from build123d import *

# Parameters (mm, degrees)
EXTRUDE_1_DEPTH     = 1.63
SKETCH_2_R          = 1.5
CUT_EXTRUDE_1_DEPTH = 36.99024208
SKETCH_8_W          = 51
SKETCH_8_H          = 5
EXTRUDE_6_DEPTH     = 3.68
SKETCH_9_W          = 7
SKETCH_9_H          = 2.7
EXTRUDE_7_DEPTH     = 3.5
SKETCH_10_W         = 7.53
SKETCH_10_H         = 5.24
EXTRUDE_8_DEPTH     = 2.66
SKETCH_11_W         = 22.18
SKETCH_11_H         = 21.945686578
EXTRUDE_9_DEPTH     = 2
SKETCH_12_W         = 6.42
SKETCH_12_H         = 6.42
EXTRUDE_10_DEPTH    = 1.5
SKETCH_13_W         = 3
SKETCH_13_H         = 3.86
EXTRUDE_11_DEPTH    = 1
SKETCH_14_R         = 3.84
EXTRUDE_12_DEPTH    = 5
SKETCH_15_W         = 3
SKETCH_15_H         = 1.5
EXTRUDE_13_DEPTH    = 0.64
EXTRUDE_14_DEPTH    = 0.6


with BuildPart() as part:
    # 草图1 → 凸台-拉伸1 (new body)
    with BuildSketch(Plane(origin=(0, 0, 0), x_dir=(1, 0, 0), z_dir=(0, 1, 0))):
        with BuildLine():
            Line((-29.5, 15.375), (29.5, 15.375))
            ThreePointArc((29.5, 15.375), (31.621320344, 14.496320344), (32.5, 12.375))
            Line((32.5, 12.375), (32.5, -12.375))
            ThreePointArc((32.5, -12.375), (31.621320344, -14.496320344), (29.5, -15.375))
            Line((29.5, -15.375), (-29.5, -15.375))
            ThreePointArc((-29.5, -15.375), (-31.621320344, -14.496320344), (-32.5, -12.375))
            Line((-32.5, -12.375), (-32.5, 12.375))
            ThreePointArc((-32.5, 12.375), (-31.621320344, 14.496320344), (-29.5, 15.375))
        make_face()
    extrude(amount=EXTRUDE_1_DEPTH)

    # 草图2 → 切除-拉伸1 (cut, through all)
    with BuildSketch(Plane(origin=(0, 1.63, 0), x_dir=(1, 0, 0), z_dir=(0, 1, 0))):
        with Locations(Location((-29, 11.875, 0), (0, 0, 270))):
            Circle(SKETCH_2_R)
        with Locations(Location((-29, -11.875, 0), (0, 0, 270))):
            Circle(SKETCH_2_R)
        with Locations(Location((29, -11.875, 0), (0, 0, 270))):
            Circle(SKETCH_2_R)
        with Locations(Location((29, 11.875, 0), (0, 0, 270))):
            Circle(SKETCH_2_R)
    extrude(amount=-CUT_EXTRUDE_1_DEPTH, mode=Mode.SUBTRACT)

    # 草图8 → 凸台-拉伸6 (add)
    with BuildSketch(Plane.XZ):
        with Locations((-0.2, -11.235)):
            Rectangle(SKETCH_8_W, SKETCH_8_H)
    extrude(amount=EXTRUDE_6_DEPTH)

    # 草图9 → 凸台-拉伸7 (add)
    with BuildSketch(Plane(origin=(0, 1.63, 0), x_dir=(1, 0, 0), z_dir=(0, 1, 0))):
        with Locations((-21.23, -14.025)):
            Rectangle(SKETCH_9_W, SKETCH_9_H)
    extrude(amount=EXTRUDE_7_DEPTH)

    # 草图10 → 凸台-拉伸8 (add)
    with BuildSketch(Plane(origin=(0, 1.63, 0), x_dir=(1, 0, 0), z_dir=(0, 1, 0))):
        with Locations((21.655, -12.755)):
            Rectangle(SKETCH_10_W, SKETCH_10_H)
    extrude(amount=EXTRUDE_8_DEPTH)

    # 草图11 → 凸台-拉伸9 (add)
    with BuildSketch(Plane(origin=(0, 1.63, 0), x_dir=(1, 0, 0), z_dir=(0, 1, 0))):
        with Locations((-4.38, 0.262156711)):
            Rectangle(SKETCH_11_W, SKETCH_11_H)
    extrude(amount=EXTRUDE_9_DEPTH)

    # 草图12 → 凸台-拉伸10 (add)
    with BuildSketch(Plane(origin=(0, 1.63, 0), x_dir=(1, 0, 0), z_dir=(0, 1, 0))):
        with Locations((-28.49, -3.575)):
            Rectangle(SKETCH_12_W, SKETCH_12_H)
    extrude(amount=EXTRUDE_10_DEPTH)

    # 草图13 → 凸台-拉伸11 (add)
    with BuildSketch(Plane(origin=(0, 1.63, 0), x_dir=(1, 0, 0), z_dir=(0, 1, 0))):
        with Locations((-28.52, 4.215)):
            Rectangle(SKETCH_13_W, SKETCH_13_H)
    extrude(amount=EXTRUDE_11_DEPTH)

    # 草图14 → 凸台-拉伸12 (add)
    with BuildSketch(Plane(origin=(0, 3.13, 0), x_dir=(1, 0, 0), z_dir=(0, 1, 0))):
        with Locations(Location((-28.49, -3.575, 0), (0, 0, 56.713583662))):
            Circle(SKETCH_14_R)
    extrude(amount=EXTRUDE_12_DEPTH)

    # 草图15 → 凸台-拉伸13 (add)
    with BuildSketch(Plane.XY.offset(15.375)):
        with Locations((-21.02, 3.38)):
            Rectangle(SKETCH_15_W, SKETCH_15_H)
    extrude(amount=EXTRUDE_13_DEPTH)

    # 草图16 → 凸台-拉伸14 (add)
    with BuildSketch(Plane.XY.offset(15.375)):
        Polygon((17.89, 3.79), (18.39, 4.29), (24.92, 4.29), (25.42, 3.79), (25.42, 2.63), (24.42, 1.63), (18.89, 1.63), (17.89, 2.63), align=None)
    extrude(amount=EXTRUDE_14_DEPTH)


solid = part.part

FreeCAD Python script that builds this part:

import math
import FreeCAD as App
import Part
import Sketcher
Q = App.Units.Quantity


def add_polygon(sketch, points):
    """Adds a closed chain of lines whose ends are joined by coincident constraints."""
    first, n = sketch.GeometryCount, len(points)
    for a, b in zip(points, points[1:] + points[:1]):
        sketch.addGeometry(Part.LineSegment(App.Vector(*a, 0), App.Vector(*b, 0)), False)
    for i in range(n):
        sketch.addConstraint(Sketcher.Constraint("Coincident", first + i, 2, first + (i + 1) % n, 1))

doc = App.newDocument("Part")
body = doc.addObject("PartDesign::Body", "Body")

# Sketch on XZ plane
sketch1 = doc.addObject("Sketcher::SketchObject", "Sketch")
body.addObject(sketch1)
sketch1.AttachmentSupport = (doc.XZ_Plane, [""])
sketch1.MapMode = "FlatFace"
sketch1.addGeometry(Part.LineSegment(App.Vector(29.5, -15.4, 0), App.Vector(-29.5, -15.4, 0)), False)
sketch1.addGeometry(Part.ArcOfCircle(Part.Circle(App.Vector(-29.5, -12.4, 0), App.Vector(0, 0, 1), 3), math.radians(180), math.radians(270)), False)
sketch1.addGeometry(Part.LineSegment(App.Vector(-32.5, -12.4, 0), App.Vector(-32.5, 12.4, 0)), False)
sketch1.addGeometry(Part.ArcOfCircle(Part.Circle(App.Vector(-29.5, 12.4, 0), App.Vector(0, 0, 1), 3), math.radians(90), math.radians(180)), False)
sketch1.addGeometry(Part.LineSegment(App.Vector(-29.5, 15.4, 0), App.Vector(29.5, 15.4, 0)), False)
sketch1.addGeometry(Part.ArcOfCircle(Part.Circle(App.Vector(29.5, 12.4, 0), App.Vector(0, 0, 1), 3), math.radians(0), math.radians(90)), False)
sketch1.addGeometry(Part.LineSegment(App.Vector(32.5, 12.4, 0), App.Vector(32.5, -12.4, 0)), False)
sketch1.addGeometry(Part.ArcOfCircle(Part.Circle(App.Vector(29.5, -12.4, 0), App.Vector(0, 0, 1), 3), math.radians(-90), math.radians(0)), False)
sketch1.addConstraint(Sketcher.Constraint("Tangent", 0, 2, 1, 2))
sketch1.addConstraint(Sketcher.Constraint("Tangent", 1, 1, 2, 1))
sketch1.addConstraint(Sketcher.Constraint("Tangent", 2, 2, 3, 2))
sketch1.addConstraint(Sketcher.Constraint("Tangent", 3, 1, 4, 1))
sketch1.addConstraint(Sketcher.Constraint("Tangent", 4, 2, 5, 2))
sketch1.addConstraint(Sketcher.Constraint("Tangent", 5, 1, 6, 1))
sketch1.addConstraint(Sketcher.Constraint("Tangent", 6, 2, 7, 2))
sketch1.addConstraint(Sketcher.Constraint("Tangent", 7, 1, 0, 1))
sketch1.addConstraint(Sketcher.Constraint("Horizontal", 0))
sketch1.addConstraint(Sketcher.Constraint("Vertical", 2))
sketch1.addConstraint(Sketcher.Constraint("Horizontal", 4))
sketch1.addConstraint(Sketcher.Constraint("Vertical", 6))
sketch1.addConstraint(Sketcher.Constraint("Equal", 1, 3))
sketch1.addConstraint(Sketcher.Constraint("Equal", 3, 5))
sketch1.addConstraint(Sketcher.Constraint("Equal", 5, 7))
sketch1.addConstraint(Sketcher.Constraint("Symmetric", 1, 3, 5, 3, -1, 1))
sketch1.addConstraint(Sketcher.Constraint("Radius", 1, Q("3 mm")))
sketch1.addConstraint(Sketcher.Constraint("DistanceX", 0, 2, 0, 1, Q("59 mm")))
sketch1.addConstraint(Sketcher.Constraint("DistanceY", 2, 1, 2, 2, Q("24.75 mm")))
pad1 = doc.addObject("PartDesign::Pad", "Pad")
body.addObject(pad1)
pad1.Profile = sketch1
pad1.Length = 1.63
pad1.Reversed = True

# Sketch on XZ plane
sketch2 = doc.addObject("Sketcher::SketchObject", "Sketch001")
body.addObject(sketch2)
sketch2.AttachmentSupport = (doc.XZ_Plane, [""])
sketch2.MapMode = "FlatFace"
sketch2.AttachmentOffset = App.Placement(App.Vector(0, 0, -1.63), App.Rotation())
sketch2.addGeometry(Part.Circle(App.Vector(-29, -11.9, 0), App.Vector(0, 0, 1), 1.5), False)
sketch2.addGeometry(Part.Circle(App.Vector(-29, 11.9, 0), App.Vector(0, 0, 1), 1.5), False)
sketch2.addGeometry(Part.Circle(App.Vector(29, 11.9, 0), App.Vector(0, 0, 1), 1.5), False)
sketch2.addGeometry(Part.Circle(App.Vector(29, -11.9, 0), App.Vector(0, 0, 1), 1.5), False)
sketch2.addConstraint(Sketcher.Constraint("Equal", 0, 1))
sketch2.addConstraint(Sketcher.Constraint("Equal", 1, 2))
sketch2.addConstraint(Sketcher.Constraint("Equal", 2, 3))
sketch2.addConstraint(Sketcher.Constraint("Symmetric", 0, 3, 2, 3, -1, 1))
sketch2.addConstraint(Sketcher.Constraint("Symmetric", 1, 3, 3, 3, -1, 1))
sketch2.addConstraint(Sketcher.Constraint("Symmetric", 1, 3, 2, 3, -2))
sketch2.addConstraint(Sketcher.Constraint("Diameter", 0, Q("3 mm")))
sketch2.addConstraint(Sketcher.Constraint("DistanceX", 0, 3, -1, 1, Q("29 mm")))
sketch2.addConstraint(Sketcher.Constraint("DistanceY", 0, 3, 1, 3, Q("23.75 mm")))
pocket1 = doc.addObject("PartDesign::Pocket", "Pocket")
body.addObject(pocket1)
pocket1.Profile = sketch2
pocket1.Type = "ThroughAll"
pocket1.Reversed = True

# Sketch on XZ plane
sketch3 = doc.addObject("Sketcher::SketchObject", "Sketch002")
body.addObject(sketch3)
sketch3.AttachmentSupport = (doc.XZ_Plane, [""])
sketch3.MapMode = "FlatFace"
add_polygon(sketch3, [(-26, -9), (-26, -14), (25, -14), (25, -9)])  # lines 0-3
sketch3.addConstraint(Sketcher.Constraint("Vertical", 0))
sketch3.addConstraint(Sketcher.Constraint("Horizontal", 1))
sketch3.addConstraint(Sketcher.Constraint("Vertical", 2))
sketch3.addConstraint(Sketcher.Constraint("Horizontal", 3))
sketch3.addConstraint(Sketcher.Constraint("DistanceX", 1, 1, 1, 2, Q("51 mm")))
sketch3.addConstraint(Sketcher.Constraint("DistanceY", 0, 2, 0, 1, Q("5 mm")))
sketch3.addConstraint(Sketcher.Constraint("DistanceX", 0, 2, -1, 1, Q("25.7 mm")))
sketch3.addConstraint(Sketcher.Constraint("DistanceY", 0, 2, -1, 1, Q("13.735 mm")))
pad2 = doc.addObject("PartDesign::Pad", "Pad001")
body.addObject(pad2)
pad2.Profile = sketch3
pad2.Length = 3.68

# Sketch on XZ plane
sketch4 = doc.addObject("Sketcher::SketchObject", "Sketch003")
body.addObject(sketch4)
sketch4.AttachmentSupport = (doc.XZ_Plane, [""])
sketch4.MapMode = "FlatFace"
sketch4.AttachmentOffset = App.Placement(App.Vector(0, 0, -1.63), App.Rotation())
add_polygon(sketch4, [(-24.7, 12.7), (-24.7, 15.4), (-17.7, 15.4), (-17.7, 12.7)])  # lines 0-3
sketch4.addConstraint(Sketcher.Constraint("Vertical", 0))
sketch4.addConstraint(Sketcher.Constraint("Horizontal", 1))
sketch4.addConstraint(Sketcher.Constraint("Vertical", 2))
sketch4.addConstraint(Sketcher.Constraint("Horizontal", 3))
sketch4.addConstraint(Sketcher.Constraint("DistanceX", 1, 1, 1, 2, Q("7 mm")))
sketch4.addConstraint(Sketcher.Constraint("DistanceY", 0, 1, 0, 2, Q("2.7 mm")))
sketch4.addConstraint(Sketcher.Constraint("DistanceX", 0, 2, -1, 1, Q("24.73 mm")))
sketch4.addConstraint(Sketcher.Constraint("DistanceY", -1, 1, 0, 2, Q("15.375 mm")))
pad3 = doc.addObject("PartDesign::Pad", "Pad002")
body.addObject(pad3)
pad3.Profile = sketch4
pad3.Length = 3.5
pad3.Reversed = True

# Sketch on XZ plane
sketch5 = doc.addObject("Sketcher::SketchObject", "Sketch004")
body.addObject(sketch5)
sketch5.AttachmentSupport = (doc.XZ_Plane, [""])
sketch5.MapMode = "FlatFace"
sketch5.AttachmentOffset = App.Placement(App.Vector(0, 0, -1.63), App.Rotation())
add_polygon(sketch5, [(18, 10), (18, 15), (25, 15), (25, 10)])  # lines 0-3
sketch5.addConstraint(Sketcher.Constraint("Vertical", 0))
sketch5.addConstraint(Sketcher.Constraint("Horizontal", 1))
sketch5.addConstraint(Sketcher.Constraint("Vertical", 2))
sketch5.addConstraint(Sketcher.Constraint("Horizontal", 3))
sketch5.addConstraint(Sketcher.Constraint("DistanceX", 1, 1, 1, 2, Q("7.53 mm")))
sketch5.addConstraint(Sketcher.Constraint("DistanceY", 0, 1, 0, 2, Q("5.24 mm")))
sketch5.addConstraint(Sketcher.Constraint("DistanceX", -1, 1, 0, 2, Q("17.89 mm")))
sketch5.addConstraint(Sketcher.Constraint("DistanceY", -1, 1, 0, 2, Q("15.375 mm")))
pad4 = doc.addObject("PartDesign::Pad", "Pad003")
body.addObject(pad4)
pad4.Profile = sketch5
pad4.Length = 2.66
pad4.Reversed = True

# Sketch on XZ plane
sketch6 = doc.addObject("Sketcher::SketchObject", "Sketch005")
body.addObject(sketch6)
sketch6.AttachmentSupport = (doc.XZ_Plane, [""])
sketch6.MapMode = "FlatFace"
sketch6.AttachmentOffset = App.Placement(App.Vector(0, 0, -1.63), App.Rotation())
add_polygon(sketch6, [(-15, -11), (-15, 11), (7, 11), (7, -11)])  # lines 0-3
sketch6.addConstraint(Sketcher.Constraint("Vertical", 0))
sketch6.addConstraint(Sketcher.Constraint("Horizontal", 1))
sketch6.addConstraint(Sketcher.Constraint("Vertical", 2))
sketch6.addConstraint(Sketcher.Constraint("Horizontal", 3))
sketch6.addConstraint(Sketcher.Constraint("DistanceX", 1, 1, 1, 2, Q("22.18 mm")))
sketch6.addConstraint(Sketcher.Constraint("DistanceX", 0, 2, -1, 1, Q("15.47 mm")))
sketch6.addConstraint(Sketcher.Constraint("DistanceY", 2, 2, -1, 1, Q("11.235 mm")))
sketch6.addConstraint(Sketcher.Constraint("DistanceY", 0, 1, 0, 2, Q("21.945687 mm")))
pad5 = doc.addObject("PartDesign::Pad", "Pad004")
body.addObject(pad5)
pad5.Profile = sketch6
pad5.Length = 2
pad5.Reversed = True

# Sketch on XZ plane
sketch7 = doc.addObject("Sketcher::SketchObject", "Sketch006")
body.addObject(sketch7)
sketch7.AttachmentSupport = (doc.XZ_Plane, [""])
sketch7.MapMode = "FlatFace"
sketch7.AttachmentOffset = App.Placement(App.Vector(0, 0, -1.63), App.Rotation())
add_polygon(sketch7, [(-32, 0), (-32, 7), (-25, 7), (-25, 0)])  # lines 0-3
sketch7.addConstraint(Sketcher.Constraint("Vertical", 0))
sketch7.addConstraint(Sketcher.Constraint("Horizontal", 1))
sketch7.addConstraint(Sketcher.Constraint("Vertical", 2))
sketch7.addConstraint(Sketcher.Constraint("Horizontal", 3))
sketch7.addConstraint(Sketcher.Constraint("Equal", 3, 0))
sketch7.addConstraint(Sketcher.Constraint("DistanceX", 1, 1, 1, 2, Q("6.42 mm")))
sketch7.addConstraint(Sketcher.Constraint("DistanceX", 0, 2, -1, 1, Q("31.7 mm")))
sketch7.addConstraint(Sketcher.Constraint("DistanceY", -1, 1, 0, 2, Q("6.785 mm")))
pad6 = doc.addObject("PartDesign::Pad", "Pad005")
body.addObject(pad6)
pad6.Profile = sketch7
pad6.Length = 1.5
pad6.Reversed = True

# Sketch on XZ plane
sketch8 = doc.addObject("Sketcher::SketchObject", "Sketch007")
body.addObject(sketch8)
sketch8.AttachmentSupport = (doc.XZ_Plane, [""])
sketch8.MapMode = "FlatFace"
sketch8.AttachmentOffset = App.Placement(App.Vector(0, 0, -1.63), App.Rotation())
add_polygon(sketch8, [(-30, -6.1), (-30, -2.3), (-27, -2.3), (-27, -6.1)])  # lines 0-3
sketch8.addConstraint(Sketcher.Constraint("Vertical", 0))
sketch8.addConstraint(Sketcher.Constraint("Horizontal", 1))
sketch8.addConstraint(Sketcher.Constraint("Vertical", 2))
sketch8.addConstraint(Sketcher.Constraint("Horizontal", 3))
sketch8.addConstraint(Sketcher.Constraint("DistanceX", 1, 1, 1, 2, Q("3 mm")))
sketch8.addConstraint(Sketcher.Constraint("DistanceY", 0, 1, 0, 2, Q("3.86 mm")))
sketch8.addConstraint(Sketcher.Constraint("DistanceX", 0, 2, -1, 1, Q("30.02 mm")))
sketch8.addConstraint(Sketcher.Constraint("DistanceY", 0, 2, -1, 1, Q("2.285 mm")))
pad7 = doc.addObject("PartDesign::Pad", "Pad006")
body.addObject(pad7)
pad7.Profile = sketch8
pad7.Length = 1
pad7.Reversed = True

# Sketch on XZ plane
sketch9 = doc.addObject("Sketcher::SketchObject", "Sketch008")
body.addObject(sketch9)
sketch9.AttachmentSupport = (doc.XZ_Plane, [""])
sketch9.MapMode = "FlatFace"
sketch9.AttachmentOffset = App.Placement(App.Vector(0, 0, -3.13), App.Rotation())
sketch9.addGeometry(Part.Circle(App.Vector(-28.5, 3.6, 0), App.Vector(0, 0, 1), 3.8), False)
sketch9.addConstraint(Sketcher.Constraint("Diameter", 0, Q("7.68 mm")))
sketch9.addConstraint(Sketcher.Constraint("DistanceX", 0, 3, -1, 1, Q("28.49 mm")))
sketch9.addConstraint(Sketcher.Constraint("DistanceY", -1, 1, 0, 3, Q("3.575 mm")))
pad8 = doc.addObject("PartDesign::Pad", "Pad007")
body.addObject(pad8)
pad8.Profile = sketch9
pad8.Length = 5
pad8.Reversed = True

# Sketch on XY plane
sketch10 = doc.addObject("Sketcher::SketchObject", "Sketch009")
body.addObject(sketch10)
sketch10.AttachmentSupport = (doc.XY_Plane, [""])
sketch10.MapMode = "FlatFace"
sketch10.AttachmentOffset = App.Placement(App.Vector(0, 0, 15.375), App.Rotation())
add_polygon(sketch10, [(-22.5, 4.1), (-22.5, 2.6), (-19.5, 2.6), (-19.5, 4.1)])  # lines 0-3
sketch10.addConstraint(Sketcher.Constraint("Vertical", 0))
sketch10.addConstraint(Sketcher.Constraint("Horizontal", 1))
sketch10.addConstraint(Sketcher.Constraint("Vertical", 2))
sketch10.addConstraint(Sketcher.Constraint("Horizontal", 3))
sketch10.addConstraint(Sketcher.Constraint("DistanceX", 1, 1, 1, 2, Q("3 mm")))
sketch10.addConstraint(Sketcher.Constraint("DistanceY", 0, 2, 0, 1, Q("1.5 mm")))
sketch10.addConstraint(Sketcher.Constraint("DistanceX", 0, 2, -1, 1, Q("22.52 mm")))
sketch10.addConstraint(Sketcher.Constraint("DistanceY", -1, 1, 0, 2, Q("2.63 mm")))
pad9 = doc.addObject("PartDesign::Pad", "Pad008")
body.addObject(pad9)
pad9.Profile = sketch10
pad9.Length = 0.64

# Sketch on XY plane
sketch11 = doc.addObject("Sketcher::SketchObject", "Sketch010")
body.addObject(sketch11)
sketch11.AttachmentSupport = (doc.XY_Plane, [""])
sketch11.MapMode = "FlatFace"
sketch11.AttachmentOffset = App.Placement(App.Vector(0, 0, 15.375), App.Rotation())
add_polygon(sketch11, [(18.4, 4.3), (17.9, 3.8), (17.9, 2.6), (18.9, 1.6), (24.4, 1.6), (25.4, 2.6), (25.4, 3.8), (24.9, 4.3)])  # lines 0-7
sketch11.addConstraint(Sketcher.Constraint("Vertical", 1))
sketch11.addConstraint(Sketcher.Constraint("Horizontal", 3))
sketch11.addConstraint(Sketcher.Constraint("Vertical", 5))
sketch11.addConstraint(Sketcher.Constraint("Horizontal", 7))
sketch11.addConstraint(Sketcher.Constraint("Perpendicular", 0, 2))
sketch11.addConstraint(Sketcher.Constraint("Perpendicular", 2, 4))
sketch11.addConstraint(Sketcher.Constraint("Perpendicular", 4, 6))
sketch11.addConstraint(Sketcher.Constraint("Horizontal", 1, 2, 4, 2))
sketch11.addConstraint(Sketcher.Constraint("Horizontal", 0, 2, 5, 2))
sketch11.addConstraint(Sketcher.Constraint("Equal", 2, 4))
sketch11.addConstraint(Sketcher.Constraint("DistanceX", 1, 2, 2, 2, Q("1 mm")))
sketch11.addConstraint(Sketcher.Constraint("DistanceX", 3, 1, 3, 2, Q("5.53 mm")))
sketch11.addConstraint(Sketcher.Constraint("DistanceX", 7, 2, 7, 1, Q("6.53 mm")))
sketch11.addConstraint(Sketcher.Constraint("DistanceY", 1, 2, 1, 1, Q("1.16 mm")))
sketch11.addConstraint(Sketcher.Constraint("DistanceX", -1, 1, 0, 2, Q("17.89 mm")))
sketch11.addConstraint(Sketcher.Constraint("DistanceY", -1, 1, 0, 2, Q("3.79 mm")))
pad10 = doc.addObject("PartDesign::Pad", "Pad009")
body.addObject(pad10)
pad10.Profile = sketch11
pad10.Length = 0.6

doc.recompute()
